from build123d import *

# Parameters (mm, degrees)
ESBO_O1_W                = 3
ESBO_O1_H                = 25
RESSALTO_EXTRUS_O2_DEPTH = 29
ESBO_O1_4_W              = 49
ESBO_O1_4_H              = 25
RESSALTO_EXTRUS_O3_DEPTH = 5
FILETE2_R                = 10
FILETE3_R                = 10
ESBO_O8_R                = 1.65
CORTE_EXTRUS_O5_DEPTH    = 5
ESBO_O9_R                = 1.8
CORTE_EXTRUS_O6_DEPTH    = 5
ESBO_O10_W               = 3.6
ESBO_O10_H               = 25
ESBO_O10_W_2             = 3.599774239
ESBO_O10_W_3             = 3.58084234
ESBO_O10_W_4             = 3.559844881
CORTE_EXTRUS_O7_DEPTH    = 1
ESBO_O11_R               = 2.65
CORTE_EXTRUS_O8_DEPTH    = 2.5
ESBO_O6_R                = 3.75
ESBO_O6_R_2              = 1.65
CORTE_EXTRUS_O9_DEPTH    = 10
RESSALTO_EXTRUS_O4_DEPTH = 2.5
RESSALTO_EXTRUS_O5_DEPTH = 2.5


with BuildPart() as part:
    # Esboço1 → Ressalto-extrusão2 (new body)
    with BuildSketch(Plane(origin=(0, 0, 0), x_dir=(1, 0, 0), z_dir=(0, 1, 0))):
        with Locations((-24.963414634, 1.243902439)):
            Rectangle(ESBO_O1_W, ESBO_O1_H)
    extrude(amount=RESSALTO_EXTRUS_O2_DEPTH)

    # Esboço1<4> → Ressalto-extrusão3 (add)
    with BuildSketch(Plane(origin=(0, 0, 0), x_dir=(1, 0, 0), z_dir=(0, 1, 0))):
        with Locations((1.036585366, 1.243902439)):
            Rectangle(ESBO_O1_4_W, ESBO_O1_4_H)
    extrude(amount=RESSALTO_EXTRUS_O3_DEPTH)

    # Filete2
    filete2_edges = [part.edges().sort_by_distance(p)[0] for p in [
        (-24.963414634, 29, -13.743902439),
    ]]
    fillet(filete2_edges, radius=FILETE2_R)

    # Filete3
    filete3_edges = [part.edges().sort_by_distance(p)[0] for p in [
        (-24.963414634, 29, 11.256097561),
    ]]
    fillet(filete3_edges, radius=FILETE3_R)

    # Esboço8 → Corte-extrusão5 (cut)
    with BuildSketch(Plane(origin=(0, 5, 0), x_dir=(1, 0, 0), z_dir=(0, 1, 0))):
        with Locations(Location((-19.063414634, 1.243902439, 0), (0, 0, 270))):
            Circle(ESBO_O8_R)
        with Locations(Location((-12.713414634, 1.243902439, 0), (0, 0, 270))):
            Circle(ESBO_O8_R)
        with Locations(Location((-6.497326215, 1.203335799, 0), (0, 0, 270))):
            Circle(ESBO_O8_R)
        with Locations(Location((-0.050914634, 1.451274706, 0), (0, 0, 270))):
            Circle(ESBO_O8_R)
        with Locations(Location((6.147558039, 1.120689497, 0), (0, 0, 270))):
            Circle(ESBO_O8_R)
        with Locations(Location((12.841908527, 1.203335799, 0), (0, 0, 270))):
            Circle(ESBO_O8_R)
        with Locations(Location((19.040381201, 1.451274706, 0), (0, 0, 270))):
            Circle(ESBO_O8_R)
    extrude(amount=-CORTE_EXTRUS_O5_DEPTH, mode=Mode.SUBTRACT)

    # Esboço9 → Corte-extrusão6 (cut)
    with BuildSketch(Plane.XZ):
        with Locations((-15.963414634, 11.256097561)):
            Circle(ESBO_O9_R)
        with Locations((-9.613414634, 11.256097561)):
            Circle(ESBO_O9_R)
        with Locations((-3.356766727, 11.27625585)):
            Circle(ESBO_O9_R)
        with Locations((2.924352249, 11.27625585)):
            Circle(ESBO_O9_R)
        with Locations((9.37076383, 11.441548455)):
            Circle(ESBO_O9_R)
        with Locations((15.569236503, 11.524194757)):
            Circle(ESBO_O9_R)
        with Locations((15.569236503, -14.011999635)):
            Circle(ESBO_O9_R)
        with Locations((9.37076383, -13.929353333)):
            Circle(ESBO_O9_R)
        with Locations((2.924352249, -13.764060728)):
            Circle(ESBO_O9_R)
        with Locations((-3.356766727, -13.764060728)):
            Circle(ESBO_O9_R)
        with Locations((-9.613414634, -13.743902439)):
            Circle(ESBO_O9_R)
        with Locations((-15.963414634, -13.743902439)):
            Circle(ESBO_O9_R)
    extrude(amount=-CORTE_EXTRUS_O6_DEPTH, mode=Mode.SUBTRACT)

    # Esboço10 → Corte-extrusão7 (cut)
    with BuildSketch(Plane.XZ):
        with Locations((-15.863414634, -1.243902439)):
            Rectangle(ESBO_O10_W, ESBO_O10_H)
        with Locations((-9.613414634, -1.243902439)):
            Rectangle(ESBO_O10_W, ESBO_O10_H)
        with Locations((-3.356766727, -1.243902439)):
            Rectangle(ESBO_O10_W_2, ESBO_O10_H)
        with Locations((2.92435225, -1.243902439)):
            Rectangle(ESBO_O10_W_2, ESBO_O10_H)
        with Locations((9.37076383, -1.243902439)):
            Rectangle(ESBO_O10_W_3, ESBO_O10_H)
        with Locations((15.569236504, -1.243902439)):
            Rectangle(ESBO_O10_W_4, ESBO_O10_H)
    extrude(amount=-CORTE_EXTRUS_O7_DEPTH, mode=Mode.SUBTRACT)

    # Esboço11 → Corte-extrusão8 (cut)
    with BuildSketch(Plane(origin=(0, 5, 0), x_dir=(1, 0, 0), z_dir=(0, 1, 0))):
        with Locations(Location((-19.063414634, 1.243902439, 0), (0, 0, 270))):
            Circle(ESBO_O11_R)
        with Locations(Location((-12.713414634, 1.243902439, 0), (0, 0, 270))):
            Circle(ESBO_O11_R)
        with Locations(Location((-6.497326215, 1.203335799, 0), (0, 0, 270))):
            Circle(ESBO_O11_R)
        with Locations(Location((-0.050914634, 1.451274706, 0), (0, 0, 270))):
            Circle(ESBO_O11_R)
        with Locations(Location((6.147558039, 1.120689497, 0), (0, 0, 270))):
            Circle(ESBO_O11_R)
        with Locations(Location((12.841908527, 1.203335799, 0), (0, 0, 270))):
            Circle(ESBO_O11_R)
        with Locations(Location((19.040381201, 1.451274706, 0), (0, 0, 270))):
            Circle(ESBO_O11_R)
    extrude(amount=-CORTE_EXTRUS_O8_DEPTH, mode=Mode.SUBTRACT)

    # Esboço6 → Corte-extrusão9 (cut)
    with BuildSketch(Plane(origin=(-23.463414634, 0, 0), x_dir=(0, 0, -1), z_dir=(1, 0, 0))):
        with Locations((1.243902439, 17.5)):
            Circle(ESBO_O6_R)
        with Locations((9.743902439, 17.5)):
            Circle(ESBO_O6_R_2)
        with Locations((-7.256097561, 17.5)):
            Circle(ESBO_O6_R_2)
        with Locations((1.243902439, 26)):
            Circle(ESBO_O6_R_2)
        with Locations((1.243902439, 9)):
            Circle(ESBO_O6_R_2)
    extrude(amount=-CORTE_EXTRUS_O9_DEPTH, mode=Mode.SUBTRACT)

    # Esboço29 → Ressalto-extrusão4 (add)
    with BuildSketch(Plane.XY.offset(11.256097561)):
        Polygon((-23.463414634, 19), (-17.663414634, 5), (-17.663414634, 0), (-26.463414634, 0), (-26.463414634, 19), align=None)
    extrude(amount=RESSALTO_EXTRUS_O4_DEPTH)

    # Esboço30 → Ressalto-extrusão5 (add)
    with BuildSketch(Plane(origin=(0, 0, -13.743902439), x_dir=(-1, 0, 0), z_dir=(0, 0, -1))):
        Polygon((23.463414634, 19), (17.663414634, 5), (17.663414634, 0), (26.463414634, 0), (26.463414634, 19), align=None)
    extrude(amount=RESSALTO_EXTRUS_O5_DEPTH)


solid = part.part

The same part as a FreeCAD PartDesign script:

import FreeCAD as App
import Part
import Sketcher
Q = App.Units.Quantity


def edges_at(feature, points):
    """Names of the edges that pass closest to the given points."""
    edges = feature.Shape.Edges
    near = lambda p: min(range(len(edges)), key=lambda i: edges[i].distToShape(Part.Vertex(*p))[0])
    return sorted({f"Edge{near(p) + 1}" for p in points})

doc = App.newDocument("Part")
params = doc.addObject("Spreadsheet::Sheet", "Params")
for row, (alias, value) in enumerate([
    ("sketch1_width", "3 mm"),
    ("sketch1_height", "25 mm"),
    ("pad1_length", "29 mm"),
    ("sketch2_width", "49 mm"),
    ("sketch2_height", "25 mm"),
    ("pad2_length", "5 mm"),
    ("fillet_radius", "10 mm"),
    ("fillet2_radius", "10 mm"),
    ("sketch3_diameter", "3.3 mm"),
    ("pocket1_length", "5 mm"),
    ("sketch4_diameter", "3.6 mm"),
    ("pocket2_length", "5 mm"),
    ("sketch5_height", "25 mm"),
    ("sketch5_width", "3.6 mm"),
    ("pocket3_length", "1 mm"),
    ("sketch6_diameter", "5.3 mm"),
    ("pocket4_length", "2.5 mm"),
    ("sketch7_diameter", "7.5 mm"),
    ("sketch7_diameter2", "3.3 mm"),
    ("pocket5_length", "10 mm"),
    ("sketch8_width", "3 mm"),
    ("sketch8_height", "19 mm"),
    ("sketch8_height2", "5 mm"),
    ("sketch8_width2", "8.8 mm"),
    ("pad3_length", "2.5 mm"),
    ("sketch9_width", "3 mm"),
    ("sketch9_height", "5 mm"),
    ("sketch9_height2", "19 mm"),
    ("sketch9_width2", "8.8 mm"),
    ("pad4_length", "2.5 mm"),
], start=1):
    params.set(f"A{row}", alias)
    params.set(f"B{row}", "=" + value)
    params.setAlias(f"B{row}", alias)

body = doc.addObject("PartDesign::Body", "Body")

sketch1 = doc.addObject("Sketcher::SketchObject", "Sketch")
body.addObject(sketch1)
sketch1.AttachmentSupport = (doc.XZ_Plane, [""])
sketch1.MapMode = "FlatFace"
sketch1.addGeometry([
    Part.LineSegment(App.Vector(-26.463415, -13.743902, 0), App.Vector(-26.463415, 11.256098, 0)),
    Part.LineSegment(App.Vector(-26.463415, 11.256098, 0), App.Vector(-23.463415, 11.256098, 0)),
    Part.LineSegment(App.Vector(-23.463415, 11.256098, 0), App.Vector(-23.463415, -13.743902, 0)),
    Part.LineSegment(App.Vector(-23.463415, -13.743902, 0), App.Vector(-26.463415, -13.743902, 0)),
], False)
sketch1.addConstraint([
    Sketcher.Constraint("Coincident", 0, 2, 1, 1),
    Sketcher.Constraint("Coincident", 1, 2, 2, 1),
    Sketcher.Constraint("Coincident", 2, 2, 3, 1),
    Sketcher.Constraint("Coincident", 3, 2, 0, 1),
    Sketcher.Constraint("Vertical", 0),
    Sketcher.Constraint("Horizontal", 1),
    Sketcher.Constraint("Vertical", 2),
    Sketcher.Constraint("Horizontal", 3),
    Sketcher.Constraint("DistanceX", 1, 1, 1, 2, Q("3 mm")),
    Sketcher.Constraint("DistanceY", 0, 1, 0, 2, Q("25 mm")),
    Sketcher.Constraint("DistanceX", 0, 2, -1, 1, Q("26.463415 mm")),
    Sketcher.Constraint("DistanceY", -1, 1, 0, 2, Q("11.256098 mm")),
])
sketch1.setExpression("Constraints[8]", "Params.sketch1_width")
sketch1.setExpression("Constraints[9]", "Params.sketch1_height")
pad1 = doc.addObject("PartDesign::Pad", "Pad")
body.addObject(pad1)
pad1.Profile = sketch1
pad1.setExpression("Length", "Params.pad1_length")
pad1.Reversed = True

sketch2 = doc.addObject("Sketcher::SketchObject", "Sketch001")
body.addObject(sketch2)
sketch2.AttachmentSupport = (doc.XZ_Plane, [""])
sketch2.MapMode = "FlatFace"
sketch2.addGeometry([
    Part.LineSegment(App.Vector(-23.463415, -13.743902, 0), App.Vector(-23.463415, 11.256098, 0)),
    Part.LineSegment(App.Vector(-23.463415, 11.256098, 0), App.Vector(25.536585, 11.256098, 0)),
    Part.LineSegment(App.Vector(25.536585, 11.256098, 0), App.Vector(25.536585, -13.743902, 0)),
    Part.LineSegment(App.Vector(25.536585, -13.743902, 0), App.Vector(-23.463415, -13.743902, 0)),
], False)
sketch2.addConstraint([
    Sketcher.Constraint("Coincident", 0, 2, 1, 1),
    Sketcher.Constraint("Coincident", 1, 2, 2, 1),
    Sketcher.Constraint("Coincident", 2, 2, 3, 1),
    Sketcher.Constraint("Coincident", 3, 2, 0, 1),
    Sketcher.Constraint("Vertical", 0),
    Sketcher.Constraint("Horizontal", 1),
    Sketcher.Constraint("Vertical", 2),
    Sketcher.Constraint("Horizontal", 3),
    Sketcher.Constraint("DistanceX", 1, 1, 1, 2, Q("49 mm")),
    Sketcher.Constraint("DistanceY", 0, 1, 0, 2, Q("25 mm")),
    Sketcher.Constraint("DistanceX", 0, 2, -1, 1, Q("23.463415 mm")),
    Sketcher.Constraint("DistanceY", -1, 1, 0, 2, Q("11.256098 mm")),
])
sketch2.setExpression("Constraints[8]", "Params.sketch2_width")
sketch2.setExpression("Constraints[9]", "Params.sketch2_height")
pad2 = doc.addObject("PartDesign::Pad", "Pad001")
body.addObject(pad2)
pad2.Profile = sketch2
pad2.setExpression("Length", "Params.pad2_length")
pad2.Reversed = True
doc.recompute()

fillet = doc.addObject("PartDesign::Fillet", "Fillet")
body.addObject(fillet)
fillet.Base = (pad2, edges_at(pad2, [(-24.963, 29, -13.744)]))
fillet.setExpression("Radius", "Params.fillet_radius")
doc.recompute()

fillet2 = doc.addObject("PartDesign::Fillet", "Fillet001")
body.addObject(fillet2)
fillet2.Base = (fillet, edges_at(fillet, [(-24.963, 29, 11.256)]))
fillet2.setExpression("Radius", "Params.fillet2_radius")

sketch3 = doc.addObject("Sketcher::SketchObject", "Sketch002")
body.addObject(sketch3)
sketch3.AttachmentSupport = (doc.XZ_Plane, [""])
sketch3.MapMode = "FlatFace"
sketch3.AttachmentOffset = App.Placement(App.Vector(0, 0, -5), App.Rotation())
sketch3.addGeometry([
    Part.Circle(App.Vector(-19.063415, -1.243902, 0), App.Vector(0, 0, 1), 1.65),
    Part.Circle(App.Vector(-12.713415, -1.243902, 0), App.Vector(0, 0, 1), 1.65),
    Part.Circle(App.Vector(-6.497326, -1.203336, 0), App.Vector(0, 0, 1), 1.65),
    Part.Circle(App.Vector(-0.050915, -1.451275, 0), App.Vector(0, 0, 1), 1.65),
    Part.Circle(App.Vector(6.147558, -1.120689, 0), App.Vector(0, 0, 1), 1.65),
    Part.Circle(App.Vector(12.841909, -1.203336, 0), App.Vector(0, 0, 1), 1.65),
    Part.Circle(App.Vector(19.040381, -1.451275, 0), App.Vector(0, 0, 1), 1.65),
], False)
sketch3.addConstraint([
    Sketcher.Constraint("Equal", 0, 1),
    Sketcher.Constraint("Equal", 1, 2),
    Sketcher.Constraint("Equal", 2, 3),
    Sketcher.Constraint("Equal", 3, 4),
    Sketcher.Constraint("Equal", 4, 5),
    Sketcher.Constraint("Equal", 5, 6),
    Sketcher.Constraint("Horizontal", 0, 3, 1, 3),
    Sketcher.Constraint("Horizontal", 2, 3, 5, 3),
    Sketcher.Constraint("Horizontal", 3, 3, 6, 3),
    Sketcher.Constraint("Diameter", 0, Q("3.3 mm")),
    Sketcher.Constraint("DistanceX", 0, 3, 1, 3, Q("6.35 mm")),
    Sketcher.Constraint("DistanceX", 1, 3, 3, 3, Q("12.6625 mm")),
    Sketcher.Constraint("DistanceX", -1, 1, 4, 3, Q("6.147558 mm")),
    Sketcher.Constraint("DistanceY", 4, 3, -1, 1, Q("1.120689 mm")),
    Sketcher.Constraint("DistanceX", -1, 1, 5, 3, Q("12.841909 mm")),
    Sketcher.Constraint("DistanceX", -1, 1, 6, 3, Q("19.040381 mm")),
    Sketcher.Constraint("DistanceX", 1, 3, 2, 3, Q("6.216088 mm")),
    Sketcher.Constraint("DistanceY", 3, 3, 2, 3, Q("0.247939 mm")),
    Sketcher.Constraint("DistanceX", 0, 3, -1, 1, Q("19.063415 mm")),
    Sketcher.Constraint("DistanceY", 0, 3, -1, 1, Q("1.243902 mm")),
    Sketcher.Constraint("DistanceY", 2, 3, -1, 1, Q("1.203336 mm")),
])
sketch3.setExpression("Constraints[9]", "Params.sketch3_diameter")
pocket1 = doc.addObject("PartDesign::Pocket", "Pocket")
body.addObject(pocket1)
pocket1.Profile = sketch3
pocket1.setExpression("Length", "Params.pocket1_length")
pocket1.Reversed = True

sketch4 = doc.addObject("Sketcher::SketchObject", "Sketch003")
body.addObject(sketch4)
sketch4.AttachmentSupport = (doc.XZ_Plane, [""])
sketch4.MapMode = "FlatFace"
sketch4.addGeometry([
    Part.Circle(App.Vector(-15.963415, 11.256098, 0), App.Vector(0, 0, 1), 1.8),
    Part.Circle(App.Vector(-9.613415, 11.256098, 0), App.Vector(0, 0, 1), 1.8),
    Part.Circle(App.Vector(-3.356767, 11.276256, 0), App.Vector(0, 0, 1), 1.8),
    Part.Circle(App.Vector(2.924352, 11.276256, 0), App.Vector(0, 0, 1), 1.8),
    Part.Circle(App.Vector(9.370764, 11.441548, 0), App.Vector(0, 0, 1), 1.8),
    Part.Circle(App.Vector(15.569237, 11.524195, 0), App.Vector(0, 0, 1), 1.8),
    Part.Circle(App.Vector(15.569237, -14.012, 0), App.Vector(0, 0, 1), 1.8),
    Part.Circle(App.Vector(9.370764, -13.929353, 0), App.Vector(0, 0, 1), 1.8),
    Part.Circle(App.Vector(2.924352, -13.764061, 0), App.Vector(0, 0, 1), 1.8),
    Part.Circle(App.Vector(-3.356767, -13.764061, 0), App.Vector(0, 0, 1), 1.8),
    Part.Circle(App.Vector(-9.613415, -13.743902, 0), App.Vector(0, 0, 1), 1.8),
    Part.Circle(App.Vector(-15.963415, -13.743902, 0), App.Vector(0, 0, 1), 1.8),
], False)
sketch4.addConstraint([
    Sketcher.Constraint("Equal", 0, 1),
    Sketcher.Constraint("Equal", 1, 2),
    Sketcher.Constraint("Equal", 2, 3),
    Sketcher.Constraint("Equal", 3, 4),
    Sketcher.Constraint("Equal", 4, 5),
    Sketcher.Constraint("Equal", 5, 6),
    Sketcher.Constraint("Equal", 6, 7),
    Sketcher.Constraint("Equal", 7, 8),
    Sketcher.Constraint("Equal", 8, 9),
    Sketcher.Constraint("Equal", 9, 10),
    Sketcher.Constraint("Equal", 10, 11),
    Sketcher.Constraint("Horizontal", 0, 3, 1, 3),
    Sketcher.Constraint("Horizontal", 2, 3, 3, 3),
    Sketcher.Constraint("Horizontal", 8, 3, 9, 3),
    Sketcher.Constraint("Horizontal", 10, 3, 11, 3),
    Sketcher.Constraint("Vertical", 5, 3, 6, 3),
    Sketcher.Constraint("Vertical", 4, 3, 7, 3),
    Sketcher.Constraint("Vertical", 3, 3, 8, 3),
    Sketcher.Constraint("Vertical", 2, 3, 9, 3),
    Sketcher.Constraint("Vertical", 1, 3, 10, 3),
    Sketcher.Constraint("Vertical", 0, 3, 11, 3),
    Sketcher.Constraint("Diameter", 0, Q("3.6 mm")),
    Sketcher.Constraint("DistanceY", 10, 3, 1, 3, Q("25 mm")),
    Sketcher.Constraint("DistanceX", 0, 3, 1, 3, Q("6.35 mm")),
    Sketcher.Constraint("DistanceY", 6, 3, -1, 1, Q("14.012 mm")),
    Sketcher.Constraint("DistanceY", 7, 3, 4, 3, Q("25.370902 mm")),
    Sketcher.Constraint("DistanceY", -1, 1, 4, 3, Q("11.441548 mm")),
    Sketcher.Constraint("DistanceY", 8, 3, -1, 1, Q("13.764061 mm")),
    Sketcher.Constraint("DistanceY", 1, 3, 2, 3, Q("0.020158 mm")),
    Sketcher.Constraint("DistanceX", 2, 3, 3, 3, Q("6.281119 mm")),
    Sketcher.Constraint("DistanceX", 3, 3, 4, 3, Q("6.446412 mm")),
    Sketcher.Constraint("DistanceX", 1, 3, 4, 3, Q("18.984178 mm")),
    Sketcher.Constraint("DistanceY", 1, 3, 4, 3, Q("0.185451 mm")),
    Sketcher.Constraint("DistanceY", 3, 3, 5, 3, Q("0.247939 mm")),
    Sketcher.Constraint("DistanceX", 1, 3, 5, 3, Q("25.182651 mm")),
    Sketcher.Constraint("DistanceX", 0, 3, -1, 1, Q("15.963415 mm")),
])
sketch4.setExpression("Constraints[21]", "Params.sketch4_diameter")
pocket2 = doc.addObject("PartDesign::Pocket", "Pocket001")
body.addObject(pocket2)
pocket2.Profile = sketch4
pocket2.setExpression("Length", "Params.pocket2_length")

sketch5 = doc.addObject("Sketcher::SketchObject", "Sketch004")
body.addObject(sketch5)
sketch5.AttachmentSupport = (doc.XZ_Plane, [""])
sketch5.MapMode = "FlatFace"
sketch5.addGeometry([
    Part.LineSegment(App.Vector(-17.663415, 11.256098, 0), App.Vector(-17.663415, -13.743902, 0)),
    Part.LineSegment(App.Vector(-17.663415, -13.743902, 0), App.Vector(-14.063415, -13.743902, 0)),
    Part.LineSegment(App.Vector(-14.063415, -13.743902, 0), App.Vector(-14.063415, 11.256098, 0)),
    Part.LineSegment(App.Vector(-14.063415, 11.256098, 0), App.Vector(-17.663415, 11.256098, 0)),
    Part.LineSegment(App.Vector(-11.413415, 11.256098, 0), App.Vector(-11.413415, -13.743902, 0)),
    Part.LineSegment(App.Vector(-11.413415, -13.743902, 0), App.Vector(-7.813415, -13.743902, 0)),
    Part.LineSegment(App.Vector(-7.813415, -13.743902, 0), App.Vector(-7.813415, 11.256098, 0)),
    Part.LineSegment(App.Vector(-7.813415, 11.256098, 0), App.Vector(-11.413415, 11.256098, 0)),
    Part.LineSegment(App.Vector(-5.156654, 11.256098, 0), App.Vector(-5.156654, -13.743902, 0)),
    Part.LineSegment(App.Vector(-5.156654, -13.743902, 0), App.Vector(-1.55688, -13.743902, 0)),
    Part.LineSegment(App.Vector(-1.55688, -13.743902, 0), App.Vector(-1.55688, 11.256098, 0)),
    Part.LineSegment(App.Vector(-1.55688, 11.256098, 0), App.Vector(-5.156654, 11.256098, 0)),
    Part.LineSegment(App.Vector(1.124465, 11.256098, 0), App.Vector(1.124465, -13.743902, 0)),
    Part.LineSegment(App.Vector(1.124465, -13.743902, 0), App.Vector(4.724239, -13.743902, 0)),
    Part.LineSegment(App.Vector(4.724239, -13.743902, 0), App.Vector(4.724239, 11.256098, 0)),
    Part.LineSegment(App.Vector(4.724239, 11.256098, 0), App.Vector(1.124465, 11.256098, 0)),
    Part.LineSegment(App.Vector(7.580343, 11.256098, 0), App.Vector(7.580343, -13.743902, 0)),
    Part.LineSegment(App.Vector(7.580343, -13.743902, 0), App.Vector(11.161185, -13.743902, 0)),
    Part.LineSegment(App.Vector(11.161185, -13.743902, 0), App.Vector(11.161185, 11.256098, 0)),
    Part.LineSegment(App.Vector(11.161185, 11.256098, 0), App.Vector(7.580343, 11.256098, 0)),
    Part.LineSegment(App.Vector(13.789314, 11.256098, 0), App.Vector(13.789314, -13.743902, 0)),
    Part.LineSegment(App.Vector(13.789314, -13.743902, 0), App.Vector(17.349159, -13.743902, 0)),
    Part.LineSegment(App.Vector(17.349159, -13.743902, 0), App.Vector(17.349159, 11.256098, 0)),
    Part.LineSegment(App.Vector(17.349159, 11.256098, 0), App.Vector(13.789314, 11.256098, 0)),
], False)
sketch5.addConstraint([
    Sketcher.Constraint("Coincident", 0, 2, 1, 1),
    Sketcher.Constraint("Coincident", 1, 2, 2, 1),
    Sketcher.Constraint("Coincident", 2, 2, 3, 1),
    Sketcher.Constraint("Coincident", 3, 2, 0, 1),
    Sketcher.Constraint("Coincident", 4, 2, 5, 1),
    Sketcher.Constraint("Coincident", 5, 2, 6, 1),
    Sketcher.Constraint("Coincident", 6, 2, 7, 1),
    Sketcher.Constraint("Coincident", 7, 2, 4, 1),
    Sketcher.Constraint("Coincident", 8, 2, 9, 1),
    Sketcher.Constraint("Coincident", 9, 2, 10, 1),
    Sketcher.Constraint("Coincident", 10, 2, 11, 1),
    Sketcher.Constraint("Coincident", 11, 2, 8, 1),
    Sketcher.Constraint("Coincident", 12, 2, 13, 1),
    Sketcher.Constraint("Coincident", 13, 2, 14, 1),
    Sketcher.Constraint("Coincident", 14, 2, 15, 1),
    Sketcher.Constraint("Coincident", 15, 2, 12, 1),
    Sketcher.Constraint("Coincident", 16, 2, 17, 1),
    Sketcher.Constraint("Coincident", 17, 2, 18, 1),
    Sketcher.Constraint("Coincident", 18, 2, 19, 1),
    Sketcher.Constraint("Coincident", 19, 2, 16, 1),
    Sketcher.Constraint("Coincident", 20, 2, 21, 1),
    Sketcher.Constraint("Coincident", 21, 2, 22, 1),
    Sketcher.Constraint("Coincident", 22, 2, 23, 1),
    Sketcher.Constraint("Coincident", 23, 2, 20, 1),
    Sketcher.Constraint("Vertical", 0),
    Sketcher.Constraint("Horizontal", 1),
    Sketcher.Constraint("Vertical", 2),
    Sketcher.Constraint("Horizontal", 3),
    Sketcher.Constraint("Vertical", 4),
    Sketcher.Constraint("Horizontal", 5),
    Sketcher.Constraint("Vertical", 6),
    Sketcher.Constraint("Horizontal", 7),
    Sketcher.Constraint("Vertical", 8),
    Sketcher.Constraint("Horizontal", 9),
    Sketcher.Constraint("Vertical", 10),
    Sketcher.Constraint("Horizontal", 11),
    Sketcher.Constraint("Vertical", 12),
    Sketcher.Constraint("Horizontal", 13),
    Sketcher.Constraint("Vertical", 14),
    Sketcher.Constraint("Horizontal", 15),
    Sketcher.Constraint("Vertical", 16),
    Sketcher.Constraint("Horizontal", 17),
    Sketcher.Constraint("Vertical", 18),
    Sketcher.Constraint("Horizontal", 19),
    Sketcher.Constraint("Vertical", 20),
    Sketcher.Constraint("Horizontal", 21),
    Sketcher.Constraint("Vertical", 22),
    Sketcher.Constraint("Horizontal", 23),
    Sketcher.Constraint("Horizontal", 1, 2, 4, 2),
    Sketcher.Constraint("Horizontal", 3, 2, 6, 2),
    Sketcher.Constraint("Horizontal", 5, 2, 8, 2),
    Sketcher.Constraint("Horizontal", 7, 2, 10, 2),
    Sketcher.Constraint("Horizontal", 9, 2, 12, 2),
    Sketcher.Constraint("Horizontal", 11, 2, 14, 2),
    Sketcher.Constraint("Horizontal", 13, 2, 16, 2),
    Sketcher.Constraint("Horizontal", 15, 2, 18, 2),
    Sketcher.Constraint("Horizontal", 17, 2, 20, 2),
    Sketcher.Constraint("Horizontal", 19, 2, 22, 2),
    Sketcher.Constraint("Equal", 3, 5),
    Sketcher.Constraint("Equal", 11, 13),
    Sketcher.Constraint("DistanceY", 0, 2, 0, 1, Q("25 mm")),
    Sketcher.Constraint("DistanceX", 1, 1, 1, 2, Q("3.6 mm")),
    Sketcher.Constraint("DistanceX", 1, 2, 4, 2, Q("2.65 mm")),
    Sketcher.Constraint("DistanceX", 6, 2, 18, 2, Q("18.9746 mm")),
    Sketcher.Constraint("DistanceX", 9, 1, 9, 2, Q("3.599774 mm")),
    Sketcher.Constraint("DistanceX", 17, 1, 17, 2, Q("3.580842 mm")),
    Sketcher.Constraint("DistanceX", 21, 1, 21, 2, Q("3.559845 mm")),
    Sketcher.Constraint("DistanceX", 9, 2, -1, 1, Q("1.55688 mm")),
    Sketcher.Constraint("DistanceX", -1, 1, 13, 2, Q("4.724239 mm")),
    Sketcher.Constraint("DistanceX", -1, 1, 21, 2, Q("17.349159 mm")),
    Sketcher.Constraint("DistanceX", 5, 2, 8, 2, Q("2.656761 mm")),
    Sketcher.Constraint("DistanceY", 0, 2, -1, 1, Q("13.743902 mm")),
])
sketch5.setExpression("Constraints[60]", "Params.sketch5_height")
sketch5.setExpression("Constraints[61]", "Params.sketch5_width")
pocket3 = doc.addObject("PartDesign::Pocket", "Pocket002")
body.addObject(pocket3)
pocket3.Profile = sketch5
pocket3.setExpression("Length", "Params.pocket3_length")

sketch6 = doc.addObject("Sketcher::SketchObject", "Sketch005")
body.addObject(sketch6)
sketch6.AttachmentSupport = (doc.XZ_Plane, [""])
sketch6.MapMode = "FlatFace"
sketch6.AttachmentOffset = App.Placement(App.Vector(0, 0, -5), App.Rotation())
sketch6.addGeometry([
    Part.Circle(App.Vector(-19.063415, -1.243902, 0), App.Vector(0, 0, 1), 2.65),
    Part.Circle(App.Vector(-12.713415, -1.243902, 0), App.Vector(0, 0, 1), 2.65),
    Part.Circle(App.Vector(-6.497326, -1.203336, 0), App.Vector(0, 0, 1), 2.65),
    Part.Circle(App.Vector(-0.050915, -1.451275, 0), App.Vector(0, 0, 1), 2.65),
    Part.Circle(App.Vector(6.147558, -1.120689, 0), App.Vector(0, 0, 1), 2.65),
    Part.Circle(App.Vector(12.841909, -1.203336, 0), App.Vector(0, 0, 1), 2.65),
    Part.Circle(App.Vector(19.040381, -1.451275, 0), App.Vector(0, 0, 1), 2.65),
], False)
sketch6.addConstraint([
    Sketcher.Constraint("Equal", 0, 1),
    Sketcher.Constraint("Equal", 1, 2),
    Sketcher.Constraint("Equal", 2, 3),
    Sketcher.Constraint("Equal", 3, 4),
    Sketcher.Constraint("Equal", 4, 5),
    Sketcher.Constraint("Equal", 5, 6),
    Sketcher.Constraint("Horizontal", 0, 3, 1, 3),
    Sketcher.Constraint("Horizontal", 2, 3, 5, 3),
    Sketcher.Constraint("Horizontal", 3, 3, 6, 3),
    Sketcher.Constraint("Diameter", 0, Q("5.3 mm")),
    Sketcher.Constraint("DistanceX", 0, 3, 1, 3, Q("6.35 mm")),
    Sketcher.Constraint("DistanceX", 1, 3, 3, 3, Q("12.6625 mm")),
    Sketcher.Constraint("DistanceX", -1, 1, 4, 3, Q("6.147558 mm")),
    Sketcher.Constraint("DistanceY", 4, 3, -1, 1, Q("1.120689 mm")),
    Sketcher.Constraint("DistanceX", -1, 1, 5, 3, Q("12.841909 mm")),
    Sketcher.Constraint("DistanceX", -1, 1, 6, 3, Q("19.040381 mm")),
    Sketcher.Constraint("DistanceX", 1, 3, 2, 3, Q("6.216088 mm")),
    Sketcher.Constraint("DistanceY", 3, 3, 2, 3, Q("0.247939 mm")),
    Sketcher.Constraint("DistanceX", 0, 3, -1, 1, Q("19.063415 mm")),
    Sketcher.Constraint("DistanceY", 0, 3, -1, 1, Q("1.243902 mm")),
    Sketcher.Constraint("DistanceY", 2, 3, -1, 1, Q("1.203336 mm")),
])
sketch6.setExpression("Constraints[9]", "Params.sketch6_diameter")
pocket4 = doc.addObject("PartDesign::Pocket", "Pocket003")
body.addObject(pocket4)
pocket4.Profile = sketch6
pocket4.setExpression("Length", "Params.pocket4_length")
pocket4.Reversed = True

sketch7 = doc.addObject("Sketcher::SketchObject", "Sketch006")
body.addObject(sketch7)
sketch7.AttachmentSupport = (doc.YZ_Plane, [""])
sketch7.MapMode = "FlatFace"
sketch7.AttachmentOffset = App.Placement(App.Vector(0, 0, -23.463415), App.Rotation())
sketch7.addGeometry([
    Part.Circle(App.Vector(17.5, -1.243902, 0), App.Vector(0, 0, 1), 3.75),
    Part.Circle(App.Vector(17.5, -9.743902, 0), App.Vector(0, 0, 1), 1.65),
    Part.Circle(App.Vector(17.5, 7.256098, 0), App.Vector(0, 0, 1), 1.65),
    Part.Circle(App.Vector(26, -1.243902, 0), App.Vector(0, 0, 1), 1.65),
    Part.Circle(App.Vector(9, -1.243902, 0), App.Vector(0, 0, 1), 1.65),
], False)
sketch7.addConstraint([
    Sketcher.Constraint("Equal", 1, 2),
    Sketcher.Constraint("Equal", 2, 3),
    Sketcher.Constraint("Equal", 3, 4),
    Sketcher.Constraint("Horizontal", 0, 3, 3, 3),
    Sketcher.Constraint("Horizontal", 3, 3, 4, 3),
    Sketcher.Constraint("Vertical", 0, 3, 1, 3),
    Sketcher.Constraint("Vertical", 1, 3, 2, 3),
    Sketcher.Constraint("Diameter", 0, Q("7.5 mm")),
    Sketcher.Constraint("Diameter", 1, Q("3.3 mm")),
    Sketcher.Constraint("DistanceX", -1, 1, 3, 3, Q("26 mm")),
    Sketcher.Constraint("DistanceX", -1, 1, 4, 3, Q("9 mm")),
    Sketcher.Constraint("DistanceY", 1, 3, 2, 3, Q("17 mm")),
    Sketcher.Constraint("DistanceX", -1, 1, 0, 3, Q("17.5 mm")),
    Sketcher.Constraint("DistanceY", 1, 3, 0, 3, Q("8.5 mm")),
    Sketcher.Constraint("DistanceY", 0, 3, -1, 1, Q("1.243902 mm")),
])
sketch7.setExpression("Constraints[7]", "Params.sketch7_diameter")
sketch7.setExpression("Constraints[8]", "Params.sketch7_diameter2")
pocket5 = doc.addObject("PartDesign::Pocket", "Pocket004")
body.addObject(pocket5)
pocket5.Profile = sketch7
pocket5.setExpression("Length", "Params.pocket5_length")

sketch8 = doc.addObject("Sketcher::SketchObject", "Sketch007")
body.addObject(sketch8)
sketch8.AttachmentSupport = (doc.XY_Plane, [""])
sketch8.MapMode = "FlatFace"
sketch8.AttachmentOffset = App.Placement(App.Vector(0, 0, 11.256098), App.Rotation())
sketch8.addGeometry([
    Part.LineSegment(App.Vector(-17.663415, 5, 0), App.Vector(-23.463415, 19, 0)),
    Part.LineSegment(App.Vector(-23.463415, 19, 0), App.Vector(-26.463415, 19, 0)),
    Part.LineSegment(App.Vector(-26.463415, 19, 0), App.Vector(-26.463415, 0, 0)),
    Part.LineSegment(App.Vector(-26.463415, 0, 0), App.Vector(-17.663415, 0, 0)),
    Part.LineSegment(App.Vector(-17.663415, 0, 0), App.Vector(-17.663415, 5, 0)),
], False)
sketch8.addConstraint([
    Sketcher.Constraint("Coincident", 0, 2, 1, 1),
    Sketcher.Constraint("Coincident", 1, 2, 2, 1),
    Sketcher.Constraint("Coincident", 2, 2, 3, 1),
    Sketcher.Constraint("Coincident", 3, 2, 4, 1),
    Sketcher.Constraint("Coincident", 4, 2, 0, 1),
    Sketcher.Constraint("Horizontal", 1),
    Sketcher.Constraint("Vertical", 2),
    Sketcher.Constraint("Horizontal", 3),
    Sketcher.Constraint("Vertical", 4),
    Sketcher.Constraint("PointOnObject", 2, 2, -1),
    Sketcher.Constraint("DistanceX", 1, 2, 1, 1, Q("3 mm")),
    Sketcher.Constraint("DistanceY", 2, 2, 2, 1, Q("19 mm")),
    Sketcher.Constraint("DistanceY", 4, 1, 4, 2, Q("5 mm")),
    Sketcher.Constraint("DistanceX", 3, 1, 3, 2, Q("8.8 mm")),
    Sketcher.Constraint("DistanceX", 0, 2, -1, 1, Q("23.463415 mm")),
])
sketch8.setExpression("Constraints[10]", "Params.sketch8_width")
sketch8.setExpression("Constraints[11]", "Params.sketch8_height")
sketch8.setExpression("Constraints[12]", "Params.sketch8_height2")
sketch8.setExpression("Constraints[13]", "Params.sketch8_width2")
pad3 = doc.addObject("PartDesign::Pad", "Pad002")
body.addObject(pad3)
pad3.Profile = sketch8
pad3.setExpression("Length", "Params.pad3_length")

sketch9 = doc.addObject("Sketcher::SketchObject", "Sketch008")
body.addObject(sketch9)
sketch9.AttachmentSupport = (doc.XY_Plane, [""])
sketch9.MapMode = "FlatFace"
sketch9.AttachmentOffset = App.Placement(App.Vector(0, 0, -13.743902), App.Rotation())
sketch9.addGeometry([
    Part.LineSegment(App.Vector(-23.463415, 19, 0), App.Vector(-17.663415, 5, 0)),
    Part.LineSegment(App.Vector(-17.663415, 5, 0), App.Vector(-17.663415, 0, 0)),
    Part.LineSegment(App.Vector(-17.663415, 0, 0), App.Vector(-26.463415, 0, 0)),
    Part.LineSegment(App.Vector(-26.463415, 0, 0), App.Vector(-26.463415, 19, 0)),
    Part.LineSegment(App.Vector(-26.463415, 19, 0), App.Vector(-23.463415, 19, 0)),
], False)
sketch9.addConstraint([
    Sketcher.Constraint("Coincident", 0, 2, 1, 1),
    Sketcher.Constraint("Coincident", 1, 2, 2, 1),
    Sketcher.Constraint("Coincident", 2, 2, 3, 1),
    Sketcher.Constraint("Coincident", 3, 2, 4, 1),
    Sketcher.Constraint("Coincident", 4, 2, 0, 1),
    Sketcher.Constraint("Vertical", 1),
    Sketcher.Constraint("Horizontal", 2),
    Sketcher.Constraint("Vertical", 3),
    Sketcher.Constraint("Horizontal", 4),
    Sketcher.Constraint("PointOnObject", 1, 2, -1),
    Sketcher.Constraint("DistanceX", 4, 1, 4, 2, Q("3 mm")),
    Sketcher.Constraint("DistanceY", 1, 2, 1, 1, Q("5 mm")),
    Sketcher.Constraint("DistanceY", 3, 1, 3, 2, Q("19 mm")),
    Sketcher.Constraint("DistanceX", 2, 2, 2, 1, Q("8.8 mm")),
    Sketcher.Constraint("DistanceX", 0, 2, -1, 1, Q("17.663415 mm")),
])
sketch9.setExpression("Constraints[10]", "Params.sketch9_width")
sketch9.setExpression("Constraints[11]", "Params.sketch9_height")
sketch9.setExpression("Constraints[12]", "Params.sketch9_height2")
sketch9.setExpression("Constraints[13]", "Params.sketch9_width2")
pad4 = doc.addObject("PartDesign::Pad", "Pad003")
body.addObject(pad4)
pad4.Profile = sketch9
pad4.setExpression("Length", "Params.pad4_length")
pad4.Reversed = True

doc.recompute()
